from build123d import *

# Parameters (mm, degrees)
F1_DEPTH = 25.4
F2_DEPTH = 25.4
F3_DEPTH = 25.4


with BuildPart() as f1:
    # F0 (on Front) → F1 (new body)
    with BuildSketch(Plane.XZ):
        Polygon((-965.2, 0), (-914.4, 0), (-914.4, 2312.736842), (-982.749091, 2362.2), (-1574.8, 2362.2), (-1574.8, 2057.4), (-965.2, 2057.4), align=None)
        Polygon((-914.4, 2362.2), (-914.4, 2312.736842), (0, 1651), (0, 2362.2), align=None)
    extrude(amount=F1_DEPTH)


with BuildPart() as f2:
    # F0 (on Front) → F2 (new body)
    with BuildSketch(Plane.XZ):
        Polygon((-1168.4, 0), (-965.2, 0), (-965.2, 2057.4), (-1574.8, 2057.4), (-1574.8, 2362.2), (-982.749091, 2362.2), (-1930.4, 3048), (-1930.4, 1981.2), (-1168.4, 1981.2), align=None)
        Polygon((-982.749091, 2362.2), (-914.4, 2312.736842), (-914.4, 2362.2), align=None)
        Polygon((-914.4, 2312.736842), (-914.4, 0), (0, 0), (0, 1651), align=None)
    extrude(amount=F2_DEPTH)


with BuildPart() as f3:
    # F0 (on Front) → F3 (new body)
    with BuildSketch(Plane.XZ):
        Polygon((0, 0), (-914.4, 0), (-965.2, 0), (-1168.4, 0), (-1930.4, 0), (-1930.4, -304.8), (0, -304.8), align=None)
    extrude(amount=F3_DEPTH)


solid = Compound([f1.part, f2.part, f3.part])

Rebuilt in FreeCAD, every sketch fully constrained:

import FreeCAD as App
import Part
import Sketcher
from FreeCAD import Vector
Q = App.Units.Quantity

doc = App.newDocument("Part")
body = doc.addObject("PartDesign::Body", "Body")
body.AllowCompound = True

# Sketch on XZ plane
sketch1 = body.newObject("Sketcher::SketchObject", "Sketch")
sketch1.AttachmentSupport = (doc.getObject("XZ_Plane"), [""])
sketch1.MapMode = "FlatFace"
sketch1.addGeometry([
    Part.LineSegment(Vector(-965.2, 0, 0), Vector(-914.4, 0, 0)),  # 0
    Part.LineSegment(Vector(-914.4, 0, 0), Vector(-914.4, 2312.736842, 0)),  # 1
    Part.LineSegment(Vector(-914.4, 2312.736842, 0), Vector(-982.749091, 2362.2, 0)),  # 2
    Part.LineSegment(Vector(-982.749091, 2362.2, 0), Vector(-1574.8, 2362.2, 0)),  # 3
    Part.LineSegment(Vector(-1574.8, 2362.2, 0), Vector(-1574.8, 2057.4, 0)),  # 4
    Part.LineSegment(Vector(-1574.8, 2057.4, 0), Vector(-965.2, 2057.4, 0)),  # 5
    Part.LineSegment(Vector(-965.2, 2057.4, 0), Vector(-965.2, 0, 0)),  # 6
    Part.LineSegment(Vector(-914.4, 2362.2, 0), Vector(-914.4, 2312.736842, 0)),  # 7
    Part.LineSegment(Vector(-914.4, 2312.736842, 0), Vector(0, 1651, 0)),  # 8
    Part.LineSegment(Vector(0, 1651, 0), Vector(0, 2362.2, 0)),  # 9
    Part.LineSegment(Vector(0, 2362.2, 0), Vector(-914.4, 2362.2, 0)),  # 10
], False)
sketch1.addConstraint([
    Sketcher.Constraint("Coincident", 0, 2, 1, 1),
    Sketcher.Constraint("Coincident", 1, 2, 2, 1),
    Sketcher.Constraint("Coincident", 2, 2, 3, 1),
    Sketcher.Constraint("Coincident", 3, 2, 4, 1),
    Sketcher.Constraint("Coincident", 4, 2, 5, 1),
    Sketcher.Constraint("Coincident", 5, 2, 6, 1),
    Sketcher.Constraint("Coincident", 6, 2, 0, 1),
    Sketcher.Constraint("Coincident", 7, 2, 8, 1),
    Sketcher.Constraint("Coincident", 8, 2, 9, 1),
    Sketcher.Constraint("Coincident", 9, 2, 10, 1),
    Sketcher.Constraint("Coincident", 10, 2, 7, 1),
    Sketcher.Constraint("Horizontal", 0),
    Sketcher.Constraint("Vertical", 1),
    Sketcher.Constraint("Horizontal", 3),
    Sketcher.Constraint("Vertical", 4),
    Sketcher.Constraint("Horizontal", 5),
    Sketcher.Constraint("Vertical", 6),
    Sketcher.Constraint("Vertical", 7),
    Sketcher.Constraint("Vertical", 9),
    Sketcher.Constraint("Horizontal", 10),
    Sketcher.Constraint("Coincident", 7, 2, 1, 2),
    Sketcher.Constraint("PointOnObject", 0, 2, -1),
    Sketcher.Constraint("PointOnObject", 8, 2, -2),
    Sketcher.Constraint("Parallel", 2, 8),
    Sketcher.Constraint("Horizontal", 3, 2, 9, 2),
    Sketcher.Constraint("DistanceX", 0, 1, 0, 2, Q("2 in")),
    Sketcher.Constraint("DistanceX", 5, 1, 5, 2, Q("24 in")),
    Sketcher.Constraint("DistanceX", 10, 2, 10, 1, Q("36 in")),
    Sketcher.Constraint("DistanceY", 4, 2, 4, 1, Q("12 in")),
    Sketcher.Constraint("DistanceY", 6, 2, 6, 1, Q("81 in")),
    Sketcher.Constraint("DistanceY", 9, 1, 9, 2, Q("28 in")),
    Sketcher.Constraint("DistanceX", 3, 2, 3, 1, Q("592.050909 mm")),
])
pad1 = body.newObject("PartDesign::Pad", "Pad")
pad1.Profile = sketch1
pad1.Length = Q("1 in")
body2 = doc.addObject("PartDesign::Body", "Body001")
body2.AllowCompound = True

# Sketch on XZ plane
sketch2 = body2.newObject("Sketcher::SketchObject", "Sketch001")
sketch2.AttachmentSupport = (doc.getObject("XZ_Plane001"), [""])
sketch2.MapMode = "FlatFace"
sketch2.addGeometry([
    Part.LineSegment(Vector(-1168.4, 0, 0), Vector(-965.2, 0, 0)),  # 0
    Part.LineSegment(Vector(-965.2, 0, 0), Vector(-965.2, 2057.4, 0)),  # 1
    Part.LineSegment(Vector(-965.2, 2057.4, 0), Vector(-1574.8, 2057.4, 0)),  # 2
    Part.LineSegment(Vector(-1574.8, 2057.4, 0), Vector(-1574.8, 2362.2, 0)),  # 3
    Part.LineSegment(Vector(-1574.8, 2362.2, 0), Vector(-982.749091, 2362.2, 0)),  # 4
    Part.LineSegment(Vector(-982.749091, 2362.2, 0), Vector(-1930.4, 3048, 0)),  # 5
    Part.LineSegment(Vector(-1930.4, 3048, 0), Vector(-1930.4, 1981.2, 0)),  # 6
    Part.LineSegment(Vector(-1930.4, 1981.2, 0), Vector(-1168.4, 1981.2, 0)),  # 7
    Part.LineSegment(Vector(-1168.4, 1981.2, 0), Vector(-1168.4, 0, 0)),  # 8
    Part.LineSegment(Vector(-982.749091, 2362.2, 0), Vector(-914.4, 2312.736842, 0)),  # 9
    Part.LineSegment(Vector(-914.4, 2312.736842, 0), Vector(-914.4, 2362.2, 0)),  # 10
    Part.LineSegment(Vector(-914.4, 2362.2, 0), Vector(-982.749091, 2362.2, 0)),  # 11
    Part.LineSegment(Vector(-914.4, 2312.736842, 0), Vector(-914.4, 0, 0)),  # 12
    Part.LineSegment(Vector(-914.4, 0, 0), Vector(0, 0, 0)),  # 13
    Part.LineSegment(Vector(0, 0, 0), Vector(0, 1651, 0)),  # 14
    Part.LineSegment(Vector(0, 1651, 0), Vector(-914.4, 2312.736842, 0)),  # 15
], False)
sketch2.addConstraint([
    Sketcher.Constraint("Coincident", 0, 2, 1, 1),
    Sketcher.Constraint("Coincident", 1, 2, 2, 1),
    Sketcher.Constraint("Coincident", 2, 2, 3, 1),
    Sketcher.Constraint("Coincident", 3, 2, 4, 1),
    Sketcher.Constraint("Coincident", 4, 2, 5, 1),
    Sketcher.Constraint("Coincident", 5, 2, 6, 1),
    Sketcher.Constraint("Coincident", 6, 2, 7, 1),
    Sketcher.Constraint("Coincident", 7, 2, 8, 1),
    Sketcher.Constraint("Coincident", 8, 2, 0, 1),
    Sketcher.Constraint("Coincident", 9, 2, 10, 1),
    Sketcher.Constraint("Coincident", 10, 2, 11, 1),
    Sketcher.Constraint("Coincident", 11, 2, 9, 1),
    Sketcher.Constraint("Coincident", 12, 2, 13, 1),
    Sketcher.Constraint("Coincident", 13, 2, 14, 1),
    Sketcher.Constraint("Coincident", 14, 2, 15, 1),
    Sketcher.Constraint("Coincident", 15, 2, 12, 1),
    Sketcher.Constraint("Horizontal", 0),
    Sketcher.Constraint("Vertical", 1),
    Sketcher.Constraint("Horizontal", 2),
    Sketcher.Constraint("Vertical", 3),
    Sketcher.Constraint("Horizontal", 4),
    Sketcher.Constraint("Vertical", 6),
    Sketcher.Constraint("Horizontal", 7),
    Sketcher.Constraint("Vertical", 8),
    Sketcher.Constraint("Vertical", 10),
    Sketcher.Constraint("Horizontal", 11),
    Sketcher.Constraint("Vertical", 12),
    Sketcher.Constraint("Horizontal", 13),
    Sketcher.Constraint("Vertical", 14),
    Sketcher.Constraint("Coincident", 13, 2, -1, 1),
    Sketcher.Constraint("Coincident", 11, 2, 4, 2),
    Sketcher.Constraint("Coincident", 15, 2, 9, 2),
    Sketcher.Constraint("PointOnObject", 0, 2, -1),
    Sketcher.Constraint("Parallel", 5, 9),
    Sketcher.Constraint("Parallel", 9, 15),
    Sketcher.Constraint("DistanceX", 0, 1, 0, 2, Q("8 in")),
    Sketcher.Constraint("DistanceX", 2, 2, 2, 1, Q("24 in")),
    Sketcher.Constraint("DistanceX", 7, 1, 7, 2, Q("30 in")),
    Sketcher.Constraint("DistanceX", 13, 1, 13, 2, Q("36 in")),
    Sketcher.Constraint("DistanceY", 1, 1, 1, 2, Q("81 in")),
    Sketcher.Constraint("DistanceY", 3, 1, 3, 2, Q("12 in")),
    Sketcher.Constraint("DistanceY", 6, 2, 6, 1, Q("42 in")),
    Sketcher.Constraint("DistanceY", 8, 2, 8, 1, Q("78 in")),
    Sketcher.Constraint("DistanceY", 14, 1, 14, 2, Q("65 in")),
    Sketcher.Constraint("DistanceX", 0, 2, -1, 1, Q("38 in")),
])
pad2 = body2.newObject("PartDesign::Pad", "Pad001")
pad2.Profile = sketch2
pad2.Length = Q("1 in")
body3 = doc.addObject("PartDesign::Body", "Body002")

# Sketch on XZ plane
sketch3 = body3.newObject("Sketcher::SketchObject", "Sketch002")
sketch3.AttachmentSupport = (doc.getObject("XZ_Plane002"), [""])
sketch3.MapMode = "FlatFace"
sketch3.addGeometry([
    Part.LineSegment(Vector(0, 0, 0), Vector(-1930.4, 0, 0)),
    Part.LineSegment(Vector(-1930.4, 0, 0), Vector(-1930.4, -304.8, 0)),
    Part.LineSegment(Vector(-1930.4, -304.8, 0), Vector(0, -304.8, 0)),
    Part.LineSegment(Vector(0, -304.8, 0), Vector(0, 0, 0)),
], False)
sketch3.addConstraint([
    Sketcher.Constraint("Coincident", 0, 2, 1, 1),
    Sketcher.Constraint("Coincident", 1, 2, 2, 1),
    Sketcher.Constraint("Coincident", 2, 2, 3, 1),
    Sketcher.Constraint("Coincident", 3, 2, 0, 1),
    Sketcher.Constraint("Horizontal", 0),
    Sketcher.Constraint("Vertical", 1),
    Sketcher.Constraint("Horizontal", 2),
    Sketcher.Constraint("Vertical", 3),
    Sketcher.Constraint("Coincident", 3, 2, -1, 1),
    Sketcher.Constraint("DistanceX", 0, 2, 0, 1, Q("76 in")),
    Sketcher.Constraint("DistanceY", 1, 2, 1, 1, Q("12 in")),
])
pad3 = body3.newObject("PartDesign::Pad", "Pad002")
pad3.Profile = sketch3
pad3.Length = Q("1 in")

doc.recompute()
